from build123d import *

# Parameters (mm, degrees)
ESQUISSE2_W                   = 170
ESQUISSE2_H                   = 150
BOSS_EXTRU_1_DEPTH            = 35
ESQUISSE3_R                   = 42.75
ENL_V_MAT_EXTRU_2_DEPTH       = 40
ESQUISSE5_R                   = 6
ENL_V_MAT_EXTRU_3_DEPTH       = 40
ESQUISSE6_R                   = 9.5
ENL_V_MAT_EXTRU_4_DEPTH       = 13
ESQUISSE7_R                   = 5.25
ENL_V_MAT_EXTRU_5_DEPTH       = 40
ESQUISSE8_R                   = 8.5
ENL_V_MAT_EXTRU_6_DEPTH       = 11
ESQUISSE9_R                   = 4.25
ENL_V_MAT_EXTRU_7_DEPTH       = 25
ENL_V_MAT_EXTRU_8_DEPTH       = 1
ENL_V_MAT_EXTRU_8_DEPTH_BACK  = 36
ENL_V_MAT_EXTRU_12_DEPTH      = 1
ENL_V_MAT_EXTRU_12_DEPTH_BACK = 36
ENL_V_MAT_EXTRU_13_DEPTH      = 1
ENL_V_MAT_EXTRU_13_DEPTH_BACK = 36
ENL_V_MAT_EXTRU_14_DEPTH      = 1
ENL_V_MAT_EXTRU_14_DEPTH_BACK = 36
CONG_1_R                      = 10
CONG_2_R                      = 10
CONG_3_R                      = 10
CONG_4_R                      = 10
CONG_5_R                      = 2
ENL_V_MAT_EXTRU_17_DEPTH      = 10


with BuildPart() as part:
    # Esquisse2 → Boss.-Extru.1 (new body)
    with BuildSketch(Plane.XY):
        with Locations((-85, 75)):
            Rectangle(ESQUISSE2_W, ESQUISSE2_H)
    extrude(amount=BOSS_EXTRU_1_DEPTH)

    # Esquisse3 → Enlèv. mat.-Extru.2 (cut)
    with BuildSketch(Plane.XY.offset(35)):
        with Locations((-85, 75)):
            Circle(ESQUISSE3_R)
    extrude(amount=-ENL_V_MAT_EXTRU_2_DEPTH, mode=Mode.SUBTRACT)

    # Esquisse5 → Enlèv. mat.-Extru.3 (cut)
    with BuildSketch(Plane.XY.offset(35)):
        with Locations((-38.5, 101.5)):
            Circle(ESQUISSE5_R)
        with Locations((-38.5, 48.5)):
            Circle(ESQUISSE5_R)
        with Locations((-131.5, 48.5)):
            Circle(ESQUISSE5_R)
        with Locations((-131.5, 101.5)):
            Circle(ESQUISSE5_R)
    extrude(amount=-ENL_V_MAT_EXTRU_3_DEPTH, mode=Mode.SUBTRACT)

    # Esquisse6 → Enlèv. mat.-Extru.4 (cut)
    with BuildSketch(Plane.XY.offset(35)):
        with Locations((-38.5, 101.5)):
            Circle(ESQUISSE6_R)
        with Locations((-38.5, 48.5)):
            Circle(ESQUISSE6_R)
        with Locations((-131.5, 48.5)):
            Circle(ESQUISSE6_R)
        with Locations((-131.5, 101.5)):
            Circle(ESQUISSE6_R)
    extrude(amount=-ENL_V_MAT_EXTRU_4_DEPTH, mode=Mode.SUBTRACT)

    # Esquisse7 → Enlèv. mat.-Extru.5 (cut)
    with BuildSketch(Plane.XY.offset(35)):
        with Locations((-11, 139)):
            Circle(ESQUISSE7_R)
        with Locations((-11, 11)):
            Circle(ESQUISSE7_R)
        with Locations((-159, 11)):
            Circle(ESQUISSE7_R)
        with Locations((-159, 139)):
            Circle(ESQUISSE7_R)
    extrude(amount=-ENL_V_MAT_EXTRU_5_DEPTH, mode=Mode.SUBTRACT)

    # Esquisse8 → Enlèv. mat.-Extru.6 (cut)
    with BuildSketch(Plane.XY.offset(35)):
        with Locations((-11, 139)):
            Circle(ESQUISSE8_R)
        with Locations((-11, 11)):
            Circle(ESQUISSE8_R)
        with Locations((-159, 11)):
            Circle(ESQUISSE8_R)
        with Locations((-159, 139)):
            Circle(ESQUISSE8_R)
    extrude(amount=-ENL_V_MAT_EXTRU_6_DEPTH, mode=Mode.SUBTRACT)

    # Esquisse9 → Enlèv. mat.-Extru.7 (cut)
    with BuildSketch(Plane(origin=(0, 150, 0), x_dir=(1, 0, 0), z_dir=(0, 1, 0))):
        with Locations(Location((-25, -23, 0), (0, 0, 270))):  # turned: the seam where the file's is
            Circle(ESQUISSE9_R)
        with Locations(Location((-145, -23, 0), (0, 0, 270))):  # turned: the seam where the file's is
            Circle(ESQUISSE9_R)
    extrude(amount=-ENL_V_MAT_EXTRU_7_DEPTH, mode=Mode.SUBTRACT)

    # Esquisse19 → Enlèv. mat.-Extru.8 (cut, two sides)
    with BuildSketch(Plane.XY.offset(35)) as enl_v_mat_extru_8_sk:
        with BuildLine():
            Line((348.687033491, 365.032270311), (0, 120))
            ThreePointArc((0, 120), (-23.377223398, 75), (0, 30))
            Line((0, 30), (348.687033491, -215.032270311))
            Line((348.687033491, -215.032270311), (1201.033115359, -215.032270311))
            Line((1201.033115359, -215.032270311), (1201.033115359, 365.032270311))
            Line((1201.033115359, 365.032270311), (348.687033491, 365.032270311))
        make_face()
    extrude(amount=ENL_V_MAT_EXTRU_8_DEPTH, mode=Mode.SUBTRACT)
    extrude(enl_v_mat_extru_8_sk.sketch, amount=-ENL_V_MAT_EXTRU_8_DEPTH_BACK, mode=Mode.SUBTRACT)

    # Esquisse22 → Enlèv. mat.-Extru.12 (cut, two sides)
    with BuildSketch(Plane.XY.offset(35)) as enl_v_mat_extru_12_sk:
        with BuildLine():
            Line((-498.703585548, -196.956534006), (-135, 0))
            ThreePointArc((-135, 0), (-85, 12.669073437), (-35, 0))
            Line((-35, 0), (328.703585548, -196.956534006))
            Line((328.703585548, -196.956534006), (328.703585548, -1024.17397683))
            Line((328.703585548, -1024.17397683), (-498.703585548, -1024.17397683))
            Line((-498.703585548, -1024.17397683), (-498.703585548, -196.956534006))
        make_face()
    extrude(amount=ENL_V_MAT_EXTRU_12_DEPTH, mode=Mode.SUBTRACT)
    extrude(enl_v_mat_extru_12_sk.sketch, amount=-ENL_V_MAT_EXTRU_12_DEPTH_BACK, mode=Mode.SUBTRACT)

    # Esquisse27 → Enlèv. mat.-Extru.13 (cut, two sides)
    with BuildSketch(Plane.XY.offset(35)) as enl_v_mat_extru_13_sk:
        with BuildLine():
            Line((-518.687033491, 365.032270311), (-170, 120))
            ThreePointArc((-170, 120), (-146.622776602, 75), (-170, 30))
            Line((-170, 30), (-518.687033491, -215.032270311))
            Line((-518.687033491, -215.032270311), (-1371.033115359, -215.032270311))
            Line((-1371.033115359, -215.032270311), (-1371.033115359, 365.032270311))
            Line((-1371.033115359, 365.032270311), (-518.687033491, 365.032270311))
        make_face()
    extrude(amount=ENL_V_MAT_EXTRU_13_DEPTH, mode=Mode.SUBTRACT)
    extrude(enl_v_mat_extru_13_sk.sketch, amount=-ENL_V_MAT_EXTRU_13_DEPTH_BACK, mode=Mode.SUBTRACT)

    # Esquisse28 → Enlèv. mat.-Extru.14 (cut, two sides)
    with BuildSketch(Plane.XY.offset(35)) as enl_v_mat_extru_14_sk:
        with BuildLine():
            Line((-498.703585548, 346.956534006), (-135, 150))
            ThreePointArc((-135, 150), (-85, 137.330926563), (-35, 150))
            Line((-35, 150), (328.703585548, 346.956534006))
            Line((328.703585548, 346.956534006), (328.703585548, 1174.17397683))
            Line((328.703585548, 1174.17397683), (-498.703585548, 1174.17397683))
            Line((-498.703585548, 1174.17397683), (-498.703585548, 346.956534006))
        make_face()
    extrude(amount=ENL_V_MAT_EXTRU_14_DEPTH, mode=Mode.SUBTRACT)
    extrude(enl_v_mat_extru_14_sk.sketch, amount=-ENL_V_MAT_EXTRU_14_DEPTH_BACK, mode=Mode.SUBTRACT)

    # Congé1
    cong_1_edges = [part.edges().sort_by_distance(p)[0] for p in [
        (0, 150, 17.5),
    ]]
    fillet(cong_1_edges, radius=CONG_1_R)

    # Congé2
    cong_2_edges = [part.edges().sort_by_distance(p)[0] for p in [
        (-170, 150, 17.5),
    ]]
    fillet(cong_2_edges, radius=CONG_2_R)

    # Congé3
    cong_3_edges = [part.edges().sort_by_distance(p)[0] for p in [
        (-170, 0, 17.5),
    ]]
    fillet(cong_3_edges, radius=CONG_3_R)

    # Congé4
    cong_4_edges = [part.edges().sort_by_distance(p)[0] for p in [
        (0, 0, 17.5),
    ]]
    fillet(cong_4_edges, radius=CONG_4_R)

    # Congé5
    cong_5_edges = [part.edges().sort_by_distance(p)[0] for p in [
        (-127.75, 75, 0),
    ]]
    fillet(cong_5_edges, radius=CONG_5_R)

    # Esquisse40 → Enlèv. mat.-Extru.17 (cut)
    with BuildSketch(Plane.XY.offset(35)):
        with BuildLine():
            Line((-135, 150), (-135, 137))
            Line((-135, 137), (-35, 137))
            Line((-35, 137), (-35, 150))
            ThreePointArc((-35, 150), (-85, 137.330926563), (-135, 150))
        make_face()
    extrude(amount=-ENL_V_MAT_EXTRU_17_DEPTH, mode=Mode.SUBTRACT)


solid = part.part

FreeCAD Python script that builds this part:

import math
import FreeCAD as App
import Part
import Sketcher
from FreeCAD import Vector


def edges_at(feature, points):
    """Names of the edges that pass closest to the given points."""
    edges = feature.Shape.Edges
    near = lambda p: min(range(len(edges)), key=lambda i: edges[i].distToShape(Part.Vertex(*p))[0])
    return sorted({f"Edge{near(p) + 1}" for p in points})


def add_polygon(sketch, points):
    """Adds a closed chain of lines whose ends are joined by coincident constraints."""
    first, n = sketch.GeometryCount, len(points)
    for a, b in zip(points, points[1:] + points[:1]):
        sketch.addGeometry(Part.LineSegment(App.Vector(*a, 0), App.Vector(*b, 0)), False)
    for i in range(n):
        sketch.addConstraint(Sketcher.Constraint("Coincident", first + i, 2, first + (i + 1) % n, 1))

doc = App.newDocument("Part")
body = doc.addObject("PartDesign::Body", "Body")

# Sketch on XY plane
sketch1 = body.newObject("Sketcher::SketchObject", "Sketch")
sketch1.AttachmentSupport = (doc.getObject("XY_Plane"), [""])
sketch1.MapMode = "FlatFace"
add_polygon(sketch1, [(-170, 150), (-170, 0), (0, 0), (0, 150)])  # lines 0-3
sketch1.addConstraint(Sketcher.Constraint("Vertical", 0))
sketch1.addConstraint(Sketcher.Constraint("Horizontal", 1))
sketch1.addConstraint(Sketcher.Constraint("Vertical", 2))
sketch1.addConstraint(Sketcher.Constraint("Horizontal", 3))
sketch1.addConstraint(Sketcher.Constraint("Coincident", 1, 2, -1, 1))
sketch1.addConstraint(Sketcher.Constraint("DistanceX", 1, 1, 1, 2, 170.0))
sketch1.addConstraint(Sketcher.Constraint("DistanceY", 0, 2, 0, 1, 150.0))
pad1 = body.newObject("PartDesign::Pad", "Pad")
pad1.Profile = sketch1
pad1.Length = 35

# Sketch on XY plane
sketch2 = body.newObject("Sketcher::SketchObject", "Sketch001")
sketch2.AttachmentSupport = (doc.getObject("XY_Plane"), [""])
sketch2.MapMode = "FlatFace"
sketch2.AttachmentOffset = App.Placement(Vector(0, 0, 35), App.Rotation())
sketch2.addGeometry(Part.Circle(Vector(-85, 75, 0), Vector(0, 0, 1), 42.75), False)
sketch2.addConstraint(Sketcher.Constraint("Diameter", 0, 85.5))
sketch2.addConstraint(Sketcher.Constraint("DistanceX", 0, 3, -1, 1, 85.0))
sketch2.addConstraint(Sketcher.Constraint("DistanceY", -1, 1, 0, 3, 75.0))
pocket1 = body.newObject("PartDesign::Pocket", "Pocket")
pocket1.Profile = sketch2
pocket1.Length = 40

# Sketch on XY plane
sketch3 = body.newObject("Sketcher::SketchObject", "Sketch002")
sketch3.AttachmentSupport = (doc.getObject("XY_Plane"), [""])
sketch3.MapMode = "FlatFace"
sketch3.AttachmentOffset = App.Placement(Vector(0, 0, 35), App.Rotation())
sketch3.addGeometry(Part.Circle(Vector(-38.5, 101.5, 0), Vector(0, 0, 1), 6), False)
sketch3.addGeometry(Part.Circle(Vector(-38.5, 48.5, 0), Vector(0, 0, 1), 6), False)
sketch3.addGeometry(Part.Circle(Vector(-131.5, 48.5, 0), Vector(0, 0, 1), 6), False)
sketch3.addGeometry(Part.Circle(Vector(-131.5, 101.5, 0), Vector(0, 0, 1), 6), False)
sketch3.addConstraint(Sketcher.Constraint("Equal", 0, 1))
sketch3.addConstraint(Sketcher.Constraint("Equal", 1, 2))
sketch3.addConstraint(Sketcher.Constraint("Equal", 2, 3))
sketch3.addConstraint(Sketcher.Constraint("Horizontal", 1, 3, 2, 3))
sketch3.addConstraint(Sketcher.Constraint("Horizontal", 0, 3, 3, 3))
sketch3.addConstraint(Sketcher.Constraint("Vertical", 0, 3, 1, 3))
sketch3.addConstraint(Sketcher.Constraint("Vertical", 2, 3, 3, 3))
sketch3.addConstraint(Sketcher.Constraint("Diameter", 0, 12.0))
sketch3.addConstraint(Sketcher.Constraint("DistanceY", 1, 3, 0, 3, 53.0))
sketch3.addConstraint(Sketcher.Constraint("DistanceX", 2, 3, 1, 3, 93.0))
sketch3.addConstraint(Sketcher.Constraint("DistanceX", 0, 3, -1, 1, 38.5))
sketch3.addConstraint(Sketcher.Constraint("DistanceY", -1, 1, 0, 3, 101.5))
pocket2 = body.newObject("PartDesign::Pocket", "Pocket001")
pocket2.Profile = sketch3
pocket2.Length = 40

# Sketch on XY plane
sketch4 = body.newObject("Sketcher::SketchObject", "Sketch003")
sketch4.AttachmentSupport = (doc.getObject("XY_Plane"), [""])
sketch4.MapMode = "FlatFace"
sketch4.AttachmentOffset = App.Placement(Vector(0, 0, 35), App.Rotation())
sketch4.addGeometry(Part.Circle(Vector(-38.5, 101.5, 0), Vector(0, 0, 1), 9.5), False)
sketch4.addGeometry(Part.Circle(Vector(-38.5, 48.5, 0), Vector(0, 0, 1), 9.5), False)
sketch4.addGeometry(Part.Circle(Vector(-131.5, 48.5, 0), Vector(0, 0, 1), 9.5), False)
sketch4.addGeometry(Part.Circle(Vector(-131.5, 101.5, 0), Vector(0, 0, 1), 9.5), False)
sketch4.addConstraint(Sketcher.Constraint("Equal", 0, 1))
sketch4.addConstraint(Sketcher.Constraint("Equal", 1, 2))
sketch4.addConstraint(Sketcher.Constraint("Equal", 2, 3))
sketch4.addConstraint(Sketcher.Constraint("Horizontal", 1, 3, 2, 3))
sketch4.addConstraint(Sketcher.Constraint("Horizontal", 0, 3, 3, 3))
sketch4.addConstraint(Sketcher.Constraint("Vertical", 0, 3, 1, 3))
sketch4.addConstraint(Sketcher.Constraint("Vertical", 2, 3, 3, 3))
sketch4.addConstraint(Sketcher.Constraint("Diameter", 0, 19.0))
sketch4.addConstraint(Sketcher.Constraint("DistanceY", 1, 3, 0, 3, 53.0))
sketch4.addConstraint(Sketcher.Constraint("DistanceX", 2, 3, 1, 3, 93.0))
sketch4.addConstraint(Sketcher.Constraint("DistanceX", 0, 3, -1, 1, 38.5))
sketch4.addConstraint(Sketcher.Constraint("DistanceY", -1, 1, 0, 3, 101.5))
pocket3 = body.newObject("PartDesign::Pocket", "Pocket002")
pocket3.Profile = sketch4
pocket3.Length = 13

# Sketch on XY plane
sketch5 = body.newObject("Sketcher::SketchObject", "Sketch004")
sketch5.AttachmentSupport = (doc.getObject("XY_Plane"), [""])
sketch5.MapMode = "FlatFace"
sketch5.AttachmentOffset = App.Placement(Vector(0, 0, 35), App.Rotation())
sketch5.addGeometry(Part.Circle(Vector(-11, 139, 0), Vector(0, 0, 1), 5.25), False)
sketch5.addGeometry(Part.Circle(Vector(-11, 11, 0), Vector(0, 0, 1), 5.25), False)
sketch5.addGeometry(Part.Circle(Vector(-159, 11, 0), Vector(0, 0, 1), 5.25), False)
sketch5.addGeometry(Part.Circle(Vector(-159, 139, 0), Vector(0, 0, 1), 5.25), False)
sketch5.addConstraint(Sketcher.Constraint("Equal", 0, 1))
sketch5.addConstraint(Sketcher.Constraint("Equal", 1, 2))
sketch5.addConstraint(Sketcher.Constraint("Equal", 2, 3))
sketch5.addConstraint(Sketcher.Constraint("Horizontal", 1, 3, 2, 3))
sketch5.addConstraint(Sketcher.Constraint("Horizontal", 0, 3, 3, 3))
sketch5.addConstraint(Sketcher.Constraint("Vertical", 0, 3, 1, 3))
sketch5.addConstraint(Sketcher.Constraint("Vertical", 2, 3, 3, 3))
sketch5.addConstraint(Sketcher.Constraint("Diameter", 0, 10.5))
sketch5.addConstraint(Sketcher.Constraint("DistanceX", 0, 3, -1, 1, 11.0))
sketch5.addConstraint(Sketcher.Constraint("DistanceY", -1, 1, 0, 3, 139.0))
sketch5.addConstraint(Sketcher.Constraint("DistanceY", -1, 1, 1, 3, 11.0))
sketch5.addConstraint(Sketcher.Constraint("DistanceX", 2, 3, -1, 1, 159.0))
pocket4 = body.newObject("PartDesign::Pocket", "Pocket003")
pocket4.Profile = sketch5
pocket4.Length = 40

# Sketch on XY plane
sketch6 = body.newObject("Sketcher::SketchObject", "Sketch005")
sketch6.AttachmentSupport = (doc.getObject("XY_Plane"), [""])
sketch6.MapMode = "FlatFace"
sketch6.AttachmentOffset = App.Placement(Vector(0, 0, 35), App.Rotation())
sketch6.addGeometry(Part.Circle(Vector(-11, 139, 0), Vector(0, 0, 1), 8.5), False)
sketch6.addGeometry(Part.Circle(Vector(-11, 11, 0), Vector(0, 0, 1), 8.5), False)
sketch6.addGeometry(Part.Circle(Vector(-159, 11, 0), Vector(0, 0, 1), 8.5), False)
sketch6.addGeometry(Part.Circle(Vector(-159, 139, 0), Vector(0, 0, 1), 8.5), False)
sketch6.addConstraint(Sketcher.Constraint("Equal", 0, 1))
sketch6.addConstraint(Sketcher.Constraint("Equal", 1, 2))
sketch6.addConstraint(Sketcher.Constraint("Equal", 2, 3))
sketch6.addConstraint(Sketcher.Constraint("Horizontal", 1, 3, 2, 3))
sketch6.addConstraint(Sketcher.Constraint("Horizontal", 0, 3, 3, 3))
sketch6.addConstraint(Sketcher.Constraint("Vertical", 0, 3, 1, 3))
sketch6.addConstraint(Sketcher.Constraint("Vertical", 2, 3, 3, 3))
sketch6.addConstraint(Sketcher.Constraint("Diameter", 0, 17.0))
sketch6.addConstraint(Sketcher.Constraint("DistanceX", 0, 3, -1, 1, 11.0))
sketch6.addConstraint(Sketcher.Constraint("DistanceY", -1, 1, 0, 3, 139.0))
sketch6.addConstraint(Sketcher.Constraint("DistanceY", -1, 1, 1, 3, 11.0))
sketch6.addConstraint(Sketcher.Constraint("DistanceX", 2, 3, -1, 1, 159.0))
pocket5 = body.newObject("PartDesign::Pocket", "Pocket004")
pocket5.Profile = sketch6
pocket5.Length = 11

# Sketch on XZ plane
sketch7 = body.newObject("Sketcher::SketchObject", "Sketch006")
sketch7.AttachmentSupport = (doc.getObject("XZ_Plane"), [""])
sketch7.MapMode = "FlatFace"
sketch7.AttachmentOffset = App.Placement(Vector(0, 0, -150), App.Rotation())
sketch7.addGeometry(Part.Circle(Vector(-25, 23, 0), Vector(0, 0, 1), 4.25), False)
sketch7.addGeometry(Part.Circle(Vector(-145, 23, 0), Vector(0, 0, 1), 4.25), False)
sketch7.addConstraint(Sketcher.Constraint("Equal", 0, 1))
sketch7.addConstraint(Sketcher.Constraint("Horizontal", 0, 3, 1, 3))
sketch7.addConstraint(Sketcher.Constraint("Diameter", 0, 8.5))
sketch7.addConstraint(Sketcher.Constraint("DistanceX", 0, 3, -1, 1, 25.0))
sketch7.addConstraint(Sketcher.Constraint("DistanceY", -1, 1, 0, 3, 23.0))
sketch7.addConstraint(Sketcher.Constraint("DistanceX", 1, 3, -1, 1, 145.0))
pocket6 = body.newObject("PartDesign::Pocket", "Pocket005")
pocket6.Profile = sketch7
pocket6.Length = 25
pocket6.Reversed = True

# Sketch on XY plane
sketch8 = body.newObject("Sketcher::SketchObject", "Sketch007")
sketch8.AttachmentSupport = (doc.getObject("XY_Plane"), [""])
sketch8.MapMode = "FlatFace"
sketch8.AttachmentOffset = App.Placement(Vector(0, 0, 35), App.Rotation())
sketch8.addGeometry(Part.LineSegment(Vector(348.687033, 365.03227, 0), Vector(0, 120, 0)), False)
sketch8.addGeometry(Part.ArcOfCircle(Part.Circle(Vector(31.622777, 75, 0), Vector(0, 0, 1), 55), math.radians(125.096801), math.radians(234.903199)), False)
sketch8.addGeometry(Part.LineSegment(Vector(0, 30, 0), Vector(348.687033, -215.03227, 0)), False)
sketch8.addGeometry(Part.LineSegment(Vector(348.687033, -215.03227, 0), Vector(1201.033115, -215.03227, 0)), False)
sketch8.addGeometry(Part.LineSegment(Vector(1201.033115, -215.03227, 0), Vector(1201.033115, 365.03227, 0)), False)
sketch8.addGeometry(Part.LineSegment(Vector(1201.033115, 365.03227, 0), Vector(348.687033, 365.03227, 0)), False)
sketch8.addConstraint(Sketcher.Constraint("Tangent", 0, 2, 1, 1))
sketch8.addConstraint(Sketcher.Constraint("Tangent", 1, 2, 2, 1))
sketch8.addConstraint(Sketcher.Constraint("Coincident", 2, 2, 3, 1))
sketch8.addConstraint(Sketcher.Constraint("Coincident", 3, 2, 4, 1))
sketch8.addConstraint(Sketcher.Constraint("Coincident", 4, 2, 5, 1))
sketch8.addConstraint(Sketcher.Constraint("Coincident", 5, 2, 0, 1))
sketch8.addConstraint(Sketcher.Constraint("Horizontal", 3))
sketch8.addConstraint(Sketcher.Constraint("Vertical", 4))
sketch8.addConstraint(Sketcher.Constraint("Horizontal", 5))
sketch8.addConstraint(Sketcher.Constraint("PointOnObject", 0, 2, -2))
sketch8.addConstraint(Sketcher.Constraint("PointOnObject", 1, 2, -2))
sketch8.addConstraint(Sketcher.Constraint("Vertical", 2, 2, 5, 2))
sketch8.addConstraint(Sketcher.Constraint("Radius", 1, 55.0))
sketch8.addConstraint(Sketcher.Constraint("DistanceY", -1, 1, 1, 3, 75.0))
sketch8.addConstraint(Sketcher.Constraint("DistanceY", -1, 1, 0, 2, 120.0))
sketch8.addConstraint(Sketcher.Constraint("DistanceX", 3, 1, 3, 2, 852.346082))
sketch8.addConstraint(Sketcher.Constraint("DistanceY", 4, 1, 4, 2, 580.064541))
pocket7 = body.newObject("PartDesign::Pocket", "Pocket006")
pocket7.Profile = sketch8
pocket7.Type = "ThroughAll"
pocket7.Midplane = True

# Sketch on XY plane
sketch9 = body.newObject("Sketcher::SketchObject", "Sketch008")
sketch9.AttachmentSupport = (doc.getObject("XY_Plane"), [""])
sketch9.MapMode = "FlatFace"
sketch9.AttachmentOffset = App.Placement(Vector(0, 0, 35), App.Rotation())
sketch9.addGeometry(Part.LineSegment(Vector(-135, 0, 0), Vector(-498.703586, -196.956534, 0)), False)
sketch9.addGeometry(Part.LineSegment(Vector(-498.703586, -196.956534, 0), Vector(-498.703586, -1024.173977, 0)), False)
sketch9.addGeometry(Part.LineSegment(Vector(-498.703586, -1024.173977, 0), Vector(328.703586, -1024.173977, 0)), False)
sketch9.addGeometry(Part.LineSegment(Vector(328.703586, -1024.173977, 0), Vector(328.703586, -196.956534, 0)), False)
sketch9.addGeometry(Part.LineSegment(Vector(328.703586, -196.956534, 0), Vector(-35, 0, 0)), False)
sketch9.addGeometry(Part.ArcOfCircle(Part.Circle(Vector(-85, -92.330927, 0), Vector(0, 0, 1), 105), math.radians(61.56311), math.radians(118.43689)), False)
sketch9.addConstraint(Sketcher.Constraint("Coincident", 0, 2, 1, 1))
sketch9.addConstraint(Sketcher.Constraint("Coincident", 1, 2, 2, 1))
sketch9.addConstraint(Sketcher.Constraint("Coincident", 2, 2, 3, 1))
sketch9.addConstraint(Sketcher.Constraint("Coincident", 3, 2, 4, 1))
sketch9.addConstraint(Sketcher.Constraint("Tangent", 4, 2, 5, 1))
sketch9.addConstraint(Sketcher.Constraint("Tangent", 5, 2, 0, 1))
sketch9.addConstraint(Sketcher.Constraint("Vertical", 1))
sketch9.addConstraint(Sketcher.Constraint("Horizontal", 2))
sketch9.addConstraint(Sketcher.Constraint("Vertical", 3))
sketch9.addConstraint(Sketcher.Constraint("PointOnObject", 4, 2, -1))
sketch9.addConstraint(Sketcher.Constraint("PointOnObject", 5, 2, -1))
sketch9.addConstraint(Sketcher.Constraint("Horizontal", 0, 2, 3, 2))
sketch9.addConstraint(Sketcher.Constraint("Radius", 5, 105.0))
sketch9.addConstraint(Sketcher.Constraint("DistanceX", 5, 3, -1, 1, 85.0))
sketch9.addConstraint(Sketcher.Constraint("DistanceX", 4, 2, -1, 1, 35.0))
sketch9.addConstraint(Sketcher.Constraint("DistanceX", 2, 1, 2, 2, 827.407171))
sketch9.addConstraint(Sketcher.Constraint("DistanceY", 1, 2, 1, 1, 827.217443))
pocket8 = body.newObject("PartDesign::Pocket", "Pocket007")
pocket8.Profile = sketch9
pocket8.Type = "ThroughAll"
pocket8.Midplane = True

# Sketch on XY plane
sketch10 = body.newObject("Sketcher::SketchObject", "Sketch009")
sketch10.AttachmentSupport = (doc.getObject("XY_Plane"), [""])
sketch10.MapMode = "FlatFace"
sketch10.AttachmentOffset = App.Placement(Vector(0, 0, 35), App.Rotation())
sketch10.addGeometry(Part.LineSegment(Vector(-170, 120, 0), Vector(-518.687033, 365.03227, 0)), False)
sketch10.addGeometry(Part.LineSegment(Vector(-518.687033, 365.03227, 0), Vector(-1371.033115, 365.03227, 0)), False)
sketch10.addGeometry(Part.LineSegment(Vector(-1371.033115, 365.03227, 0), Vector(-1371.033115, -215.03227, 0)), False)
sketch10.addGeometry(Part.LineSegment(Vector(-1371.033115, -215.03227, 0), Vector(-518.687033, -215.03227, 0)), False)
sketch10.addGeometry(Part.LineSegment(Vector(-518.687033, -215.03227, 0), Vector(-170, 30, 0)), False)
sketch10.addGeometry(Part.ArcOfCircle(Part.Circle(Vector(-201.622777, 75, 0), Vector(0, 0, 1), 55), math.radians(-54.903199), math.radians(54.903199)), False)
sketch10.addConstraint(Sketcher.Constraint("Coincident", 0, 2, 1, 1))
sketch10.addConstraint(Sketcher.Constraint("Coincident", 1, 2, 2, 1))
sketch10.addConstraint(Sketcher.Constraint("Coincident", 2, 2, 3, 1))
sketch10.addConstraint(Sketcher.Constraint("Coincident", 3, 2, 4, 1))
sketch10.addConstraint(Sketcher.Constraint("Tangent", 4, 2, 5, 1))
sketch10.addConstraint(Sketcher.Constraint("Tangent", 5, 2, 0, 1))
sketch10.addConstraint(Sketcher.Constraint("Horizontal", 1))
sketch10.addConstraint(Sketcher.Constraint("Vertical", 2))
sketch10.addConstraint(Sketcher.Constraint("Horizontal", 3))
sketch10.addConstraint(Sketcher.Constraint("Vertical", 0, 2, 3, 2))
sketch10.addConstraint(Sketcher.Constraint("Vertical", 4, 2, 5, 2))
sketch10.addConstraint(Sketcher.Constraint("Radius", 5, 55.0))
sketch10.addConstraint(Sketcher.Constraint("DistanceY", -1, 1, 5, 3, 75.0))
sketch10.addConstraint(Sketcher.Constraint("DistanceX", 4, 2, -1, 1, 170.0))
sketch10.addConstraint(Sketcher.Constraint("DistanceY", -1, 1, 4, 2, 30.0))
sketch10.addConstraint(Sketcher.Constraint("DistanceX", 1, 2, 1, 1, 852.346082))
sketch10.addConstraint(Sketcher.Constraint("DistanceY", 2, 2, 2, 1, 580.064541))
pocket9 = body.newObject("PartDesign::Pocket", "Pocket008")
pocket9.Profile = sketch10
pocket9.Type = "ThroughAll"
pocket9.Midplane = True

# Sketch on XY plane
sketch11 = body.newObject("Sketcher::SketchObject", "Sketch010")
sketch11.AttachmentSupport = (doc.getObject("XY_Plane"), [""])
sketch11.MapMode = "FlatFace"
sketch11.AttachmentOffset = App.Placement(Vector(0, 0, 35), App.Rotation())
sketch11.addGeometry(Part.LineSegment(Vector(-498.703586, 346.956534, 0), Vector(-135, 150, 0)), False)
sketch11.addGeometry(Part.ArcOfCircle(Part.Circle(Vector(-85, 242.330927, 0), Vector(0, 0, 1), 105), math.radians(-118.43689), math.radians(-61.56311)), False)
sketch11.addGeometry(Part.LineSegment(Vector(-35, 150, 0), Vector(328.703586, 346.956534, 0)), False)
sketch11.addGeometry(Part.LineSegment(Vector(328.703586, 346.956534, 0), Vector(328.703586, 1174.173977, 0)), False)
sketch11.addGeometry(Part.LineSegment(Vector(328.703586, 1174.173977, 0), Vector(-498.703586, 1174.173977, 0)), False)
sketch11.addGeometry(Part.LineSegment(Vector(-498.703586, 1174.173977, 0), Vector(-498.703586, 346.956534, 0)), False)
sketch11.addConstraint(Sketcher.Constraint("Tangent", 0, 2, 1, 1))
sketch11.addConstraint(Sketcher.Constraint("Tangent", 1, 2, 2, 1))
sketch11.addConstraint(Sketcher.Constraint("Coincident", 2, 2, 3, 1))
sketch11.addConstraint(Sketcher.Constraint("Coincident", 3, 2, 4, 1))
sketch11.addConstraint(Sketcher.Constraint("Coincident", 4, 2, 5, 1))
sketch11.addConstraint(Sketcher.Constraint("Coincident", 5, 2, 0, 1))
sketch11.addConstraint(Sketcher.Constraint("Vertical", 3))
sketch11.addConstraint(Sketcher.Constraint("Horizontal", 4))
sketch11.addConstraint(Sketcher.Constraint("Vertical", 5))
sketch11.addConstraint(Sketcher.Constraint("Horizontal", 0, 2, 1, 2))
sketch11.addConstraint(Sketcher.Constraint("Horizontal", 2, 2, 5, 2))
sketch11.addConstraint(Sketcher.Constraint("Radius", 1, 105.0))
sketch11.addConstraint(Sketcher.Constraint("DistanceX", 1, 3, -1, 1, 85.0))
sketch11.addConstraint(Sketcher.Constraint("DistanceX", 0, 2, -1, 1, 135.0))
sketch11.addConstraint(Sketcher.Constraint("DistanceY", -1, 1, 0, 2, 150.0))
sketch11.addConstraint(Sketcher.Constraint("DistanceX", 4, 2, 4, 1, 827.407171))
sketch11.addConstraint(Sketcher.Constraint("DistanceY", 3, 1, 3, 2, 827.217443))
pocket10 = body.newObject("PartDesign::Pocket", "Pocket009")
pocket10.Profile = sketch11
pocket10.Type = "ThroughAll"
pocket10.Midplane = True
doc.recompute()

fillet = body.newObject("PartDesign::Fillet", "Fillet")
fillet.Base = (pocket10, edges_at(pocket10, [(0, 150, 17.5)]))
fillet.Radius = 10
doc.recompute()

fillet2 = body.newObject("PartDesign::Fillet", "Fillet001")
fillet2.Base = (fillet, edges_at(fillet, [(-170, 150, 17.5)]))
fillet2.Radius = 10
doc.recompute()

fillet3 = body.newObject("PartDesign::Fillet", "Fillet002")
fillet3.Base = (fillet2, edges_at(fillet2, [(-170, 0, 17.5)]))
fillet3.Radius = 10
doc.recompute()

fillet4 = body.newObject("PartDesign::Fillet", "Fillet003")
fillet4.Base = (fillet3, edges_at(fillet3, [(0, 0, 17.5)]))
fillet4.Radius = 10
doc.recompute()

fillet5 = body.newObject("PartDesign::Fillet", "Fillet004")
fillet5.Base = (fillet4, edges_at(fillet4, [(-127.75, 75, 0)]))
fillet5.Radius = 2

# Sketch on XY plane
sketch12 = body.newObject("Sketcher::SketchObject", "Sketch011")
sketch12.AttachmentSupport = (doc.getObject("XY_Plane"), [""])
sketch12.MapMode = "FlatFace"
sketch12.AttachmentOffset = App.Placement(Vector(0, 0, 35), App.Rotation())
sketch12.addGeometry(Part.LineSegment(Vector(-135, 150, 0), Vector(-135, 137, 0)), False)
sketch12.addGeometry(Part.LineSegment(Vector(-135, 137, 0), Vector(-35, 137, 0)), False)
sketch12.addGeometry(Part.LineSegment(Vector(-35, 137, 0), Vector(-35, 150, 0)), False)
sketch12.addGeometry(Part.ArcOfCircle(Part.Circle(Vector(-85, 242.330927, 0), Vector(0, 0, 1), 105), math.radians(-118.43689), math.radians(-61.56311)), False)
sketch12.addConstraint(Sketcher.Constraint("Coincident", 0, 2, 1, 1))
sketch12.addConstraint(Sketcher.Constraint("Coincident", 1, 2, 2, 1))
sketch12.addConstraint(Sketcher.Constraint("Coincident", 2, 2, 3, 2))
sketch12.addConstraint(Sketcher.Constraint("Coincident", 3, 1, 0, 1))
sketch12.addConstraint(Sketcher.Constraint("Vertical", 0))
sketch12.addConstraint(Sketcher.Constraint("Horizontal", 1))
sketch12.addConstraint(Sketcher.Constraint("Vertical", 2))
sketch12.addConstraint(Sketcher.Constraint("Horizontal", 2, 2, 3, 1))
sketch12.addConstraint(Sketcher.Constraint("Radius", 3, 105.0))
sketch12.addConstraint(Sketcher.Constraint("DistanceX", 1, 1, 1, 2, 100.0))
sketch12.addConstraint(Sketcher.Constraint("DistanceY", 0, 2, 0, 1, 13.0))
sketch12.addConstraint(Sketcher.Constraint("DistanceX", 3, 3, -1, 1, 85.0))
sketch12.addConstraint(Sketcher.Constraint("DistanceY", -1, 1, 0, 2, 137.0))
pocket11 = body.newObject("PartDesign::Pocket", "Pocket010")
pocket11.Profile = sketch12
pocket11.Length = 10

doc.recompute()
